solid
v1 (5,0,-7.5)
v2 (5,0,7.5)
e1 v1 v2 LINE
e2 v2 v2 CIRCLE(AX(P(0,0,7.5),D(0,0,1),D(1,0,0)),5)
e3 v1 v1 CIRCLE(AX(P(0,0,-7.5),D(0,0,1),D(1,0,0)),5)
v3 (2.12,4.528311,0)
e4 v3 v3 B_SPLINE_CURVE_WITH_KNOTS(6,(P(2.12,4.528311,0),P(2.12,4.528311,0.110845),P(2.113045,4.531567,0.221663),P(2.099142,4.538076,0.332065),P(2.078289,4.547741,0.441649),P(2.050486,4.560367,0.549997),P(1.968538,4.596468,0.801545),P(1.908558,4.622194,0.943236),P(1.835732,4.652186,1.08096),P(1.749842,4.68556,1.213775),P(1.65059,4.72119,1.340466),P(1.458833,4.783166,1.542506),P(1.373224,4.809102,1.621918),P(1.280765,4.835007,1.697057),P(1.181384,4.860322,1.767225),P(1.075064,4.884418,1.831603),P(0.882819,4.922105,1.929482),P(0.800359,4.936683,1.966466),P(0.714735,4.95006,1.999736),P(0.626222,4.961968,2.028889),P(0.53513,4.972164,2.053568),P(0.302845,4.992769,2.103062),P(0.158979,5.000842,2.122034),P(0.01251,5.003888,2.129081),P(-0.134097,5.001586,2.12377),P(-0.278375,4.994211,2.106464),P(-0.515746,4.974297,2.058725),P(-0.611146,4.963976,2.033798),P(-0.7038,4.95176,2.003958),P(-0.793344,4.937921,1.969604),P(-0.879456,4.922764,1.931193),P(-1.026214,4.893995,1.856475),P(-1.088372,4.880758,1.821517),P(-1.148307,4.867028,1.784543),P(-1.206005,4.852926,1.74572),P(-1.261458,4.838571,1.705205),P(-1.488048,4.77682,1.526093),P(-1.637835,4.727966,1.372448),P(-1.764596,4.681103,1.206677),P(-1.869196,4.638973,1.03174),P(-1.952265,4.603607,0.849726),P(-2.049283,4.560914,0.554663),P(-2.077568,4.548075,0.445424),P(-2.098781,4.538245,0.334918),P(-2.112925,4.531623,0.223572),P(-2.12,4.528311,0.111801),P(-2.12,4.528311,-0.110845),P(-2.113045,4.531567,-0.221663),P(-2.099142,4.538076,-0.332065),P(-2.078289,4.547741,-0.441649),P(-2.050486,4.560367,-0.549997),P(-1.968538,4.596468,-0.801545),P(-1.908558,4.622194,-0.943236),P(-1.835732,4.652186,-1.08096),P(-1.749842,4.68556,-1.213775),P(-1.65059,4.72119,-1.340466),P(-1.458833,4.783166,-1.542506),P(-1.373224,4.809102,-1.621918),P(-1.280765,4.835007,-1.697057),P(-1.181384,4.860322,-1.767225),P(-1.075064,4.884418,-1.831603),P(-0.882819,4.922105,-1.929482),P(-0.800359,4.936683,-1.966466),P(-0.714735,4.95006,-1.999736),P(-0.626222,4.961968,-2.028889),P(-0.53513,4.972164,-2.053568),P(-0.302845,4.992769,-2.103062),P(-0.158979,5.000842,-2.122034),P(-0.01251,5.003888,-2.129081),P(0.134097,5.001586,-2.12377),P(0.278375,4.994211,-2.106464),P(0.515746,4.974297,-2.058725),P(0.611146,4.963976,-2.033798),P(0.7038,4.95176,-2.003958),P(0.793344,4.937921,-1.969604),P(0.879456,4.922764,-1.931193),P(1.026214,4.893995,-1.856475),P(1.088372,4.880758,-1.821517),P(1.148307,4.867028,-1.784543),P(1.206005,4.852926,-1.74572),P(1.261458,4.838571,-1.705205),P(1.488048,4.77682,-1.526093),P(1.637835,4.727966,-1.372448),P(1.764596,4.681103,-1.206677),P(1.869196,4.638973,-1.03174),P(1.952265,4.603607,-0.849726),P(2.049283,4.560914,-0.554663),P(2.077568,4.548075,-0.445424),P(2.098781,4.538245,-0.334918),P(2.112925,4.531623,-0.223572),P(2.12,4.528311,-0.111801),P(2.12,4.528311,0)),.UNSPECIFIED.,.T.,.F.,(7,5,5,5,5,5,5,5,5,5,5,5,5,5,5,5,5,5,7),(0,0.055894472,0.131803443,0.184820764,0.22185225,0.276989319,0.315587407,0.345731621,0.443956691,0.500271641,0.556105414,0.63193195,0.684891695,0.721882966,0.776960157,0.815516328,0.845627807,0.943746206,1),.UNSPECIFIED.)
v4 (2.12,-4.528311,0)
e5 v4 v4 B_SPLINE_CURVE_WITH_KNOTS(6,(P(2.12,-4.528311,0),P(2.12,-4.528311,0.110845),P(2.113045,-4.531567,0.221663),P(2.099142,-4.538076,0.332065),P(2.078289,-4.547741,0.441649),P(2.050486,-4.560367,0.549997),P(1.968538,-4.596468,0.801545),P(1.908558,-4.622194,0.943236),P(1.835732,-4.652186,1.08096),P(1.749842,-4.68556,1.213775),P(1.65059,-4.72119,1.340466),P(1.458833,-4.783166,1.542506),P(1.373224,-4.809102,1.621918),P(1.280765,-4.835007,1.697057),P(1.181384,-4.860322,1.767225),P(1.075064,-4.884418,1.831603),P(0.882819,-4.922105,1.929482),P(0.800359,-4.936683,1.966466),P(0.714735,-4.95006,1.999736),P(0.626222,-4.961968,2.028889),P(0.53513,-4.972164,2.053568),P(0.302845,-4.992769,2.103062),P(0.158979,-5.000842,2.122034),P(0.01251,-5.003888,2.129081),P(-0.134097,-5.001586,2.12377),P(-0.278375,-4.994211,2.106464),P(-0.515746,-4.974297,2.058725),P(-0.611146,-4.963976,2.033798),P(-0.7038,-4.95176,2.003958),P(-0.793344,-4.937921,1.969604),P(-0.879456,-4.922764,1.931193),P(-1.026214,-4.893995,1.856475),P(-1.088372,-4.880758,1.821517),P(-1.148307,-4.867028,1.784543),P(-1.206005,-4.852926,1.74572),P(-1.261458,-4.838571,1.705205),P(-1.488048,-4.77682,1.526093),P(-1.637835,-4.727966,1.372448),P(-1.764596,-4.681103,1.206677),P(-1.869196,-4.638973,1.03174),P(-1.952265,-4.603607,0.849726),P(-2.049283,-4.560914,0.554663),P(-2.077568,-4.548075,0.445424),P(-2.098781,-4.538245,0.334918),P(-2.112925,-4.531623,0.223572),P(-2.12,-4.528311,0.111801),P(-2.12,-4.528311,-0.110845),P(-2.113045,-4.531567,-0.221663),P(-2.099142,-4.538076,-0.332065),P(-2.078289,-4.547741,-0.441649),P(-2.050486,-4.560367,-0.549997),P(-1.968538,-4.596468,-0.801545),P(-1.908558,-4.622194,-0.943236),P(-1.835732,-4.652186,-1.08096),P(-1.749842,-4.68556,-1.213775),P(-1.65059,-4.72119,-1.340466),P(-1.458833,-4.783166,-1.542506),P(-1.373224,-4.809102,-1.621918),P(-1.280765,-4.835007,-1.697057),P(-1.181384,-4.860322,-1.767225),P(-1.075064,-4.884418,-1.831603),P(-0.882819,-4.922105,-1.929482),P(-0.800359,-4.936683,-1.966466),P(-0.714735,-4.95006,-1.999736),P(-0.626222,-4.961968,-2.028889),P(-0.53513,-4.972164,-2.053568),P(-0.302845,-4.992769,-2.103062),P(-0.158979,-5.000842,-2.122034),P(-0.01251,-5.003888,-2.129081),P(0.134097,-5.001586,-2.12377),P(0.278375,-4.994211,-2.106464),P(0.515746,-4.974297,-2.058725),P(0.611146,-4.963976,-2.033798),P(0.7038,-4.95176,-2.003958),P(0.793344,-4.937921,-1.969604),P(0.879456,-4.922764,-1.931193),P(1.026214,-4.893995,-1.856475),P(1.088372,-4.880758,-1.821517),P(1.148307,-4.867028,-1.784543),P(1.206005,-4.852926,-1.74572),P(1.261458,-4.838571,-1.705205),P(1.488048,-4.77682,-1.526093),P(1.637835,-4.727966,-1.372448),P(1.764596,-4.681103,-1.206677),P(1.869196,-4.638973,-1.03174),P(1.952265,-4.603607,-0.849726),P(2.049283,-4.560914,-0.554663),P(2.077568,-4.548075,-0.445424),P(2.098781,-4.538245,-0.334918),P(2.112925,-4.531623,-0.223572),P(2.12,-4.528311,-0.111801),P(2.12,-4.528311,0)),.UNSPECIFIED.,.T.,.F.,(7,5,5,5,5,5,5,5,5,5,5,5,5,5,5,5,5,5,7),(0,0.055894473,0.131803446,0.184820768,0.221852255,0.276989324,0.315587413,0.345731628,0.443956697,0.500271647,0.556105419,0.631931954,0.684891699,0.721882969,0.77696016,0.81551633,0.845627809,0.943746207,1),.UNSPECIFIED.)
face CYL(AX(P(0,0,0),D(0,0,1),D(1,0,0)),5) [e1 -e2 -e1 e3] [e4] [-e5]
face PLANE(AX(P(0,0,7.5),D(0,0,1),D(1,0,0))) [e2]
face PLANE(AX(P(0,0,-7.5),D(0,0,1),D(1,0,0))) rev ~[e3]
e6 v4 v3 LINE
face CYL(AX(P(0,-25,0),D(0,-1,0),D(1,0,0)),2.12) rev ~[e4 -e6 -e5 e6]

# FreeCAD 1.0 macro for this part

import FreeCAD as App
import Part
import Sketcher

V = App.Vector

doc = App.newDocument("Part")
body = doc.addObject("PartDesign::Body", "Body")

sketch1 = body.newObject("Sketcher::SketchObject", "Sketch")
sketch1.AttachmentSupport = (doc.getObject("XY_Plane"), [""])
sketch1.MapMode = "FlatFace"
sketch1.addGeometry(Part.Circle(V(0, 0, 0), V(0, 0, 1), 5), False)
sketch1.addConstraint([
    Sketcher.Constraint("Coincident", 0, 3, -1, 1),
    Sketcher.Constraint("Diameter", 0, 10.0),
])
pad1 = body.newObject("PartDesign::Pad", "Pad")
pad1.Profile = sketch1
pad1.Length = 15
pad1.Midplane = True

sketch2 = body.newObject("Sketcher::SketchObject", "Sketch001")
sketch2.AttachmentSupport = (doc.getObject("XZ_Plane"), [""])
sketch2.MapMode = "FlatFace"
sketch2.AttachmentOffset = App.Placement(V(0, 0, 25), App.Rotation())
sketch2.addGeometry(Part.Circle(V(0, 0, 0), V(0, 0, 1), 2.12), False)
sketch2.addConstraint([
    Sketcher.Constraint("Coincident", 0, 3, -1, 1),
    Sketcher.Constraint("Diameter", 0, 4.24),
])
pocket1 = body.newObject("PartDesign::Pocket", "Pocket")
pocket1.Profile = sketch2
pocket1.Type = "ThroughAll"

doc.recompute()
